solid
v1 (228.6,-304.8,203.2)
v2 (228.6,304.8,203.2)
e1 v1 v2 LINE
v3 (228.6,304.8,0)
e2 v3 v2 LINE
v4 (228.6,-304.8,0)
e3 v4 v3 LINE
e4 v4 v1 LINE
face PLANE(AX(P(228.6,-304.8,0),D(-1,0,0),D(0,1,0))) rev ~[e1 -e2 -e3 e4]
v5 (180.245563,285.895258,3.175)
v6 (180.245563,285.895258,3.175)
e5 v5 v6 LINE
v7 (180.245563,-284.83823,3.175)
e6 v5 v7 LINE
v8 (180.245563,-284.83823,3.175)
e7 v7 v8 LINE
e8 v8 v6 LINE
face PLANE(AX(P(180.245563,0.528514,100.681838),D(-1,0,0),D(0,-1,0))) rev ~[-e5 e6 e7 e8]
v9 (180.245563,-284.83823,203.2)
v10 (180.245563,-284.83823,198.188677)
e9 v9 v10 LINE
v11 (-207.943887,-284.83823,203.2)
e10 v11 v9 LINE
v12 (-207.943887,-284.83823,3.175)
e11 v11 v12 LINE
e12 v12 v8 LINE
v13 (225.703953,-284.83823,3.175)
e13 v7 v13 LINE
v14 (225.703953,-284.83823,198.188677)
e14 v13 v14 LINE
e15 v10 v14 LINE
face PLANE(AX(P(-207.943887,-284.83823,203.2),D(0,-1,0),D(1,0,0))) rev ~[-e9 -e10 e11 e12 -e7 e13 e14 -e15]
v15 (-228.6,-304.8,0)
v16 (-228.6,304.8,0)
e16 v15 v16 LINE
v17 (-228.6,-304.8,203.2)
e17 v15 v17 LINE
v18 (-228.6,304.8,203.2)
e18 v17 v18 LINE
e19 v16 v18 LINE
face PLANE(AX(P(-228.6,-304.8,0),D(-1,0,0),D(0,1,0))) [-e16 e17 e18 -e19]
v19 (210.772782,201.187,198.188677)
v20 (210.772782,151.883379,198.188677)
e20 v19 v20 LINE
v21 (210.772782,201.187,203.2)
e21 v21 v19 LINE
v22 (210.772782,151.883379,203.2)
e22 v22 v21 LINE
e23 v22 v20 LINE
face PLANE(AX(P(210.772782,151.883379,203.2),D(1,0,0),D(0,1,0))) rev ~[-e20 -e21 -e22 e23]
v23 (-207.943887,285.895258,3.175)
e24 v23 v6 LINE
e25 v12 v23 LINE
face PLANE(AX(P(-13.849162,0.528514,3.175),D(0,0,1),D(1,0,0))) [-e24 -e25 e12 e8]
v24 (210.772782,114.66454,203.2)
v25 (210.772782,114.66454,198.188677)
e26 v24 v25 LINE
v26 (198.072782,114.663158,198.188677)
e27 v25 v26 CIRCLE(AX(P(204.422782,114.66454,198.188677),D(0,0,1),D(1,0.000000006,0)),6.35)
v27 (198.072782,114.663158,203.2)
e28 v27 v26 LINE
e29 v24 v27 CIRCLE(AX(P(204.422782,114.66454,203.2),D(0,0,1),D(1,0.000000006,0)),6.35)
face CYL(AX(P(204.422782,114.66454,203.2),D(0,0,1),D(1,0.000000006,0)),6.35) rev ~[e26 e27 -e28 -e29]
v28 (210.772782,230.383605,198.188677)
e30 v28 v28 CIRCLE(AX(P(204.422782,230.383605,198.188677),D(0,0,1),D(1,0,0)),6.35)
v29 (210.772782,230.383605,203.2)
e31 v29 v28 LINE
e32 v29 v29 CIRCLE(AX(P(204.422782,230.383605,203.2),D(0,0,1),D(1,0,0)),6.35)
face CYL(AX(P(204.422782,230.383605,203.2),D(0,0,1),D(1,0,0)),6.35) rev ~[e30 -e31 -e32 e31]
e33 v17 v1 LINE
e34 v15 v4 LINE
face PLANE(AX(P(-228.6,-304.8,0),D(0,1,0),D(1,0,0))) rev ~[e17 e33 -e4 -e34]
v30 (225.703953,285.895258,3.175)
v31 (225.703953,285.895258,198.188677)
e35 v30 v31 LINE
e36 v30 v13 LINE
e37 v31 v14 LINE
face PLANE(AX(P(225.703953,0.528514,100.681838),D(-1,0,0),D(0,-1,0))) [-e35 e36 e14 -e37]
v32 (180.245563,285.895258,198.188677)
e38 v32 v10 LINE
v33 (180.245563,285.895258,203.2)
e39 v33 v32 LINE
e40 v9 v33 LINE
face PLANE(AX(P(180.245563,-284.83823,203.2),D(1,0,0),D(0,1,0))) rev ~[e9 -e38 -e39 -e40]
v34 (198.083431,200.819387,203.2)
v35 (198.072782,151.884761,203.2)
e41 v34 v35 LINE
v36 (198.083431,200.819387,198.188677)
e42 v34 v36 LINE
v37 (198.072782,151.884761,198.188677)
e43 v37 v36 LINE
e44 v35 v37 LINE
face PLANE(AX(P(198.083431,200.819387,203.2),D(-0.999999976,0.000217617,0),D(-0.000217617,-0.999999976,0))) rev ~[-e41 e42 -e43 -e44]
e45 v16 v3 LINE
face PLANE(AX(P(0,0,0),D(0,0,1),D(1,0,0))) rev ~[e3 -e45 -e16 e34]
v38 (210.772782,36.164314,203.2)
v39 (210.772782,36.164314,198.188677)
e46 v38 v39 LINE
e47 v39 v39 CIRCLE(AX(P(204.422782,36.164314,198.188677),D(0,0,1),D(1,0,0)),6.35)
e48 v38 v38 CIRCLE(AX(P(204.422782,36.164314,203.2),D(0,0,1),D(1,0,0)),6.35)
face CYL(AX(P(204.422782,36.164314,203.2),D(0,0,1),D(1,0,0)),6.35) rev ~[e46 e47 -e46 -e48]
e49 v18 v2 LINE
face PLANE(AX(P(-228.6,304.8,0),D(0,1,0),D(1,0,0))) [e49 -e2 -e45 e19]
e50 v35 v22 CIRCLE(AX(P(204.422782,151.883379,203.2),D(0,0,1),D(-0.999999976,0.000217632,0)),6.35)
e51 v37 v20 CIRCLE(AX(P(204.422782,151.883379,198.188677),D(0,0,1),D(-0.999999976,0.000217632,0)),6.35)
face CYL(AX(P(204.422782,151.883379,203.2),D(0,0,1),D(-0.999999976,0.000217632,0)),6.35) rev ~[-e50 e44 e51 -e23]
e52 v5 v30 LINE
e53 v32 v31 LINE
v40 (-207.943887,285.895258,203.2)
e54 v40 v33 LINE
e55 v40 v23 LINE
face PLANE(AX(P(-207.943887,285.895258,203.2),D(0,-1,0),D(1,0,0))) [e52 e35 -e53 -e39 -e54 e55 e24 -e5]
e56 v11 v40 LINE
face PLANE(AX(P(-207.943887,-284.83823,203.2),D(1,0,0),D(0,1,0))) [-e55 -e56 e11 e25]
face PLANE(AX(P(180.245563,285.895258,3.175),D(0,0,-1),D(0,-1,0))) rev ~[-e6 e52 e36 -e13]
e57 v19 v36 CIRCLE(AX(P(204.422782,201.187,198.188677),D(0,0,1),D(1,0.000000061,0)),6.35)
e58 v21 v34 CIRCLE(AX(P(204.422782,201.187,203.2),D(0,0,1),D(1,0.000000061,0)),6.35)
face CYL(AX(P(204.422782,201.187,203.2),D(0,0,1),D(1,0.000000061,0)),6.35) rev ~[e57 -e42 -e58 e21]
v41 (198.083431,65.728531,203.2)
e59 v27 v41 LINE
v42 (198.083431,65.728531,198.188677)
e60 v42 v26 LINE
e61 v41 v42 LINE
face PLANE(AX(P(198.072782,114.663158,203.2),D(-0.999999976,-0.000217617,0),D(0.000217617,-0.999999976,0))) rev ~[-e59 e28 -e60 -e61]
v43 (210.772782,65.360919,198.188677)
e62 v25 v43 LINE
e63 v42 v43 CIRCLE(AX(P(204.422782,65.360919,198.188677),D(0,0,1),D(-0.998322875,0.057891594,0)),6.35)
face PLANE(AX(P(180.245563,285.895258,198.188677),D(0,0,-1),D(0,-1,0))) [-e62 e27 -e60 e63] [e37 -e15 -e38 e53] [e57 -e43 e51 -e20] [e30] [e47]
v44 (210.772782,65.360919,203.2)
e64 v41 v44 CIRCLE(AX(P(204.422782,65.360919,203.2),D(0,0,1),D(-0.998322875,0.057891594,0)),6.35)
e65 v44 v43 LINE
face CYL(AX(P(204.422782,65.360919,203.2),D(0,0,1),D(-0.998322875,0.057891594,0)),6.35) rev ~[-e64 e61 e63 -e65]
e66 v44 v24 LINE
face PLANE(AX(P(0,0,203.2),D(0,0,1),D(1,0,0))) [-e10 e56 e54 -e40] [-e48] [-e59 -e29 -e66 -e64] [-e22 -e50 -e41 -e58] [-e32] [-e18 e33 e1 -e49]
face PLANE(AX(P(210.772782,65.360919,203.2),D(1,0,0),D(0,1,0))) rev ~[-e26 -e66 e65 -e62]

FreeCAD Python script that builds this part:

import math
import FreeCAD as App
import Part
import Sketcher
Q = App.Units.Quantity


def add_polygon(sketch, points):
    """Adds a closed chain of lines whose ends are joined by coincident constraints."""
    first, n = sketch.GeometryCount, len(points)
    for a, b in zip(points, points[1:] + points[:1]):
        sketch.addGeometry(Part.LineSegment(App.Vector(*a, 0), App.Vector(*b, 0)), False)
    for i in range(n):
        sketch.addConstraint(Sketcher.Constraint("Coincident", first + i, 2, first + (i + 1) % n, 1))

doc = App.newDocument("Part")
body = doc.addObject("PartDesign::Body", "Body")

sketch1 = body.newObject("Sketcher::SketchObject", "Sketch")
sketch1.AttachmentSupport = (doc.getObject("XY_Plane"), [""])
sketch1.MapMode = "FlatFace"
add_polygon(sketch1, [(-229, 305), (-229, -305), (229, -305), (229, 305)])
sketch1.addConstraint([
    Sketcher.Constraint("Vertical", 0),
    Sketcher.Constraint("Horizontal", 1),
    Sketcher.Constraint("Vertical", 2),
    Sketcher.Constraint("Horizontal", 3),
    Sketcher.Constraint("Symmetric", 0, 2, 2, 2, -1, 1),
    Sketcher.Constraint("DistanceX", 1, 1, 1, 2, Q("18 in")),
    Sketcher.Constraint("DistanceY", 0, 2, 0, 1, Q("24 in")),
])
pad1 = body.newObject("PartDesign::Pad", "Pad")
pad1.Profile = sketch1
pad1.Length = Q("8 in")

sketch2 = body.newObject("Sketcher::SketchObject", "Sketch001")
sketch2.AttachmentSupport = (doc.getObject("XY_Plane"), [""])
sketch2.MapMode = "FlatFace"
sketch2.AttachmentOffset = App.Placement(App.Vector(0, 0, 8 * 25.4), App.Rotation())
add_polygon(sketch2, [(-208, 286), (-208, -285), (180, -285), (180, 286)])
sketch2.addConstraint([
    Sketcher.Constraint("Vertical", 0),
    Sketcher.Constraint("Horizontal", 1),
    Sketcher.Constraint("Vertical", 2),
    Sketcher.Constraint("Horizontal", 3),
    Sketcher.Constraint("DistanceX", 1, 1, 1, 2, 388.18945),
    Sketcher.Constraint("DistanceY", 0, 2, 0, 1, 570.733487),
    Sketcher.Constraint("DistanceY", 0, 2, -1, 1, 284.83823),
    Sketcher.Constraint("DistanceX", 0, 2, -1, 1, 207.943887),
])
pocket1 = body.newObject("PartDesign::Pocket", "Pocket")
pocket1.Profile = sketch2
pocket1.Length = Q("7.875 in")

sketch3 = body.newObject("Sketcher::SketchObject", "Sketch002")
sketch3.AttachmentSupport = (doc.getObject("YZ_Plane"), [""])
sketch3.MapMode = "FlatFace"
sketch3.AttachmentOffset = App.Placement(App.Vector(0, 0, 180.245563), App.Rotation())
add_polygon(sketch3, [(286, 198), (286, 3), (-285, 3), (-285, 198)])
sketch3.addConstraint([
    Sketcher.Constraint("Vertical", 0),
    Sketcher.Constraint("Horizontal", 1),
    Sketcher.Constraint("Vertical", 2),
    Sketcher.Constraint("Horizontal", 3),
    Sketcher.Constraint("DistanceY", -1, 1, 0, 2, Q("0.125 in")),
    Sketcher.Constraint("DistanceX", 1, 2, 1, 1, 570.733487),
    Sketcher.Constraint("DistanceY", 0, 2, 0, 1, 195.013677),
    Sketcher.Constraint("DistanceX", 1, 2, -1, 1, 284.83823),
])
pocket2 = body.newObject("PartDesign::Pocket", "Pocket001")
pocket2.Profile = sketch3
pocket2.Length = 45.45839
pocket2.Reversed = True

sketch4 = body.newObject("Sketcher::SketchObject", "Sketch003")
sketch4.AttachmentSupport = (doc.getObject("XY_Plane"), [""])
sketch4.MapMode = "FlatFace"
sketch4.AttachmentOffset = App.Placement(App.Vector(0, 0, 8 * 25.4), App.Rotation())
sketch4.addGeometry([
    Part.Circle(App.Vector(204.422782, 230.383605, 0), App.Vector(0, 0, 1), 6.35),
    Part.LineSegment(App.Vector(210.772782, 151.883379, 0), App.Vector(210.772782, 201.187, 0)),
    Part.ArcOfCircle(Part.Circle(App.Vector(204.422782, 201.187, 0), App.Vector(0, 0, 1), 6.35), math.radians(0.000003), math.radians(183.318808)),
    Part.LineSegment(App.Vector(198.083431, 200.819387, 0), App.Vector(198.072782, 151.884761, 0)),
    Part.ArcOfCircle(Part.Circle(App.Vector(204.422782, 151.883379, 0), App.Vector(0, 0, 1), 6.35), math.radians(179.987531), math.radians(360)),
    Part.LineSegment(App.Vector(198.072782, 114.663158, 0), App.Vector(198.083431, 65.728531, 0)),
    Part.ArcOfCircle(Part.Circle(App.Vector(204.422782, 65.360919, 0), App.Vector(0, 0, 1), 6.35), math.radians(176.6812), math.radians(359.999997)),
    Part.LineSegment(App.Vector(210.772782, 65.360919, 0), App.Vector(210.772782, 114.66454, 0)),
    Part.ArcOfCircle(Part.Circle(App.Vector(204.422782, 114.66454, 0), App.Vector(0, 0, 1), 6.35), math.radians(0), math.radians(180.012469)),
    Part.Circle(App.Vector(204.422782, 36.164314, 0), App.Vector(0, 0, 1), 6.35),
], False)
sketch4.addConstraint([
    Sketcher.Constraint("Tangent", 1, 2, 2, 1),
    Sketcher.Constraint("Coincident", 2, 2, 3, 1),
    Sketcher.Constraint("Tangent", 3, 2, 4, 1),
    Sketcher.Constraint("Tangent", 4, 2, 1, 1),
    Sketcher.Constraint("Coincident", 5, 2, 6, 1),
    Sketcher.Constraint("Tangent", 6, 2, 7, 1),
    Sketcher.Constraint("Tangent", 7, 2, 8, 1),
    Sketcher.Constraint("Tangent", 8, 2, 5, 1),
    Sketcher.Constraint("Vertical", 1),
    Sketcher.Constraint("Vertical", 7),
    Sketcher.Constraint("Equal", 0, 2),
    Sketcher.Constraint("Equal", 2, 4),
    Sketcher.Constraint("Equal", 4, 6),
    Sketcher.Constraint("Equal", 6, 8),
    Sketcher.Constraint("Equal", 8, 9),
    Sketcher.Constraint("Vertical", 0, 3, 2, 3),
    Sketcher.Constraint("Vertical", 4, 3, 6, 3),
    Sketcher.Constraint("Vertical", 8, 3, 9, 3),
    Sketcher.Constraint("Vertical", 2, 2, 5, 2),
    Sketcher.Constraint("Equal", 1, 7),
    Sketcher.Constraint("Diameter", 0, Q("0.5 in")),
    Sketcher.Constraint("DistanceY", 1, 1, 1, 2, 49.303621),
    Sketcher.Constraint("DistanceY", -1, 1, 2, 3, 201.187),
    Sketcher.Constraint("Distance", 5, 48.934628),
    Sketcher.Constraint("DistanceX", -1, 1, 2, 3, 204.422782),
    Sketcher.Constraint("DistanceY", -1, 1, 6, 3, 65.360919),
    Sketcher.Constraint("DistanceY", 9, 3, 0, 3, 194.219291),
    Sketcher.Constraint("DistanceY", -1, 1, 0, 3, 230.383605),
])
pocket3 = body.newObject("PartDesign::Pocket", "Pocket002")
pocket3.Profile = sketch4
pocket3.Length = Q("1 in")

doc.recompute()
